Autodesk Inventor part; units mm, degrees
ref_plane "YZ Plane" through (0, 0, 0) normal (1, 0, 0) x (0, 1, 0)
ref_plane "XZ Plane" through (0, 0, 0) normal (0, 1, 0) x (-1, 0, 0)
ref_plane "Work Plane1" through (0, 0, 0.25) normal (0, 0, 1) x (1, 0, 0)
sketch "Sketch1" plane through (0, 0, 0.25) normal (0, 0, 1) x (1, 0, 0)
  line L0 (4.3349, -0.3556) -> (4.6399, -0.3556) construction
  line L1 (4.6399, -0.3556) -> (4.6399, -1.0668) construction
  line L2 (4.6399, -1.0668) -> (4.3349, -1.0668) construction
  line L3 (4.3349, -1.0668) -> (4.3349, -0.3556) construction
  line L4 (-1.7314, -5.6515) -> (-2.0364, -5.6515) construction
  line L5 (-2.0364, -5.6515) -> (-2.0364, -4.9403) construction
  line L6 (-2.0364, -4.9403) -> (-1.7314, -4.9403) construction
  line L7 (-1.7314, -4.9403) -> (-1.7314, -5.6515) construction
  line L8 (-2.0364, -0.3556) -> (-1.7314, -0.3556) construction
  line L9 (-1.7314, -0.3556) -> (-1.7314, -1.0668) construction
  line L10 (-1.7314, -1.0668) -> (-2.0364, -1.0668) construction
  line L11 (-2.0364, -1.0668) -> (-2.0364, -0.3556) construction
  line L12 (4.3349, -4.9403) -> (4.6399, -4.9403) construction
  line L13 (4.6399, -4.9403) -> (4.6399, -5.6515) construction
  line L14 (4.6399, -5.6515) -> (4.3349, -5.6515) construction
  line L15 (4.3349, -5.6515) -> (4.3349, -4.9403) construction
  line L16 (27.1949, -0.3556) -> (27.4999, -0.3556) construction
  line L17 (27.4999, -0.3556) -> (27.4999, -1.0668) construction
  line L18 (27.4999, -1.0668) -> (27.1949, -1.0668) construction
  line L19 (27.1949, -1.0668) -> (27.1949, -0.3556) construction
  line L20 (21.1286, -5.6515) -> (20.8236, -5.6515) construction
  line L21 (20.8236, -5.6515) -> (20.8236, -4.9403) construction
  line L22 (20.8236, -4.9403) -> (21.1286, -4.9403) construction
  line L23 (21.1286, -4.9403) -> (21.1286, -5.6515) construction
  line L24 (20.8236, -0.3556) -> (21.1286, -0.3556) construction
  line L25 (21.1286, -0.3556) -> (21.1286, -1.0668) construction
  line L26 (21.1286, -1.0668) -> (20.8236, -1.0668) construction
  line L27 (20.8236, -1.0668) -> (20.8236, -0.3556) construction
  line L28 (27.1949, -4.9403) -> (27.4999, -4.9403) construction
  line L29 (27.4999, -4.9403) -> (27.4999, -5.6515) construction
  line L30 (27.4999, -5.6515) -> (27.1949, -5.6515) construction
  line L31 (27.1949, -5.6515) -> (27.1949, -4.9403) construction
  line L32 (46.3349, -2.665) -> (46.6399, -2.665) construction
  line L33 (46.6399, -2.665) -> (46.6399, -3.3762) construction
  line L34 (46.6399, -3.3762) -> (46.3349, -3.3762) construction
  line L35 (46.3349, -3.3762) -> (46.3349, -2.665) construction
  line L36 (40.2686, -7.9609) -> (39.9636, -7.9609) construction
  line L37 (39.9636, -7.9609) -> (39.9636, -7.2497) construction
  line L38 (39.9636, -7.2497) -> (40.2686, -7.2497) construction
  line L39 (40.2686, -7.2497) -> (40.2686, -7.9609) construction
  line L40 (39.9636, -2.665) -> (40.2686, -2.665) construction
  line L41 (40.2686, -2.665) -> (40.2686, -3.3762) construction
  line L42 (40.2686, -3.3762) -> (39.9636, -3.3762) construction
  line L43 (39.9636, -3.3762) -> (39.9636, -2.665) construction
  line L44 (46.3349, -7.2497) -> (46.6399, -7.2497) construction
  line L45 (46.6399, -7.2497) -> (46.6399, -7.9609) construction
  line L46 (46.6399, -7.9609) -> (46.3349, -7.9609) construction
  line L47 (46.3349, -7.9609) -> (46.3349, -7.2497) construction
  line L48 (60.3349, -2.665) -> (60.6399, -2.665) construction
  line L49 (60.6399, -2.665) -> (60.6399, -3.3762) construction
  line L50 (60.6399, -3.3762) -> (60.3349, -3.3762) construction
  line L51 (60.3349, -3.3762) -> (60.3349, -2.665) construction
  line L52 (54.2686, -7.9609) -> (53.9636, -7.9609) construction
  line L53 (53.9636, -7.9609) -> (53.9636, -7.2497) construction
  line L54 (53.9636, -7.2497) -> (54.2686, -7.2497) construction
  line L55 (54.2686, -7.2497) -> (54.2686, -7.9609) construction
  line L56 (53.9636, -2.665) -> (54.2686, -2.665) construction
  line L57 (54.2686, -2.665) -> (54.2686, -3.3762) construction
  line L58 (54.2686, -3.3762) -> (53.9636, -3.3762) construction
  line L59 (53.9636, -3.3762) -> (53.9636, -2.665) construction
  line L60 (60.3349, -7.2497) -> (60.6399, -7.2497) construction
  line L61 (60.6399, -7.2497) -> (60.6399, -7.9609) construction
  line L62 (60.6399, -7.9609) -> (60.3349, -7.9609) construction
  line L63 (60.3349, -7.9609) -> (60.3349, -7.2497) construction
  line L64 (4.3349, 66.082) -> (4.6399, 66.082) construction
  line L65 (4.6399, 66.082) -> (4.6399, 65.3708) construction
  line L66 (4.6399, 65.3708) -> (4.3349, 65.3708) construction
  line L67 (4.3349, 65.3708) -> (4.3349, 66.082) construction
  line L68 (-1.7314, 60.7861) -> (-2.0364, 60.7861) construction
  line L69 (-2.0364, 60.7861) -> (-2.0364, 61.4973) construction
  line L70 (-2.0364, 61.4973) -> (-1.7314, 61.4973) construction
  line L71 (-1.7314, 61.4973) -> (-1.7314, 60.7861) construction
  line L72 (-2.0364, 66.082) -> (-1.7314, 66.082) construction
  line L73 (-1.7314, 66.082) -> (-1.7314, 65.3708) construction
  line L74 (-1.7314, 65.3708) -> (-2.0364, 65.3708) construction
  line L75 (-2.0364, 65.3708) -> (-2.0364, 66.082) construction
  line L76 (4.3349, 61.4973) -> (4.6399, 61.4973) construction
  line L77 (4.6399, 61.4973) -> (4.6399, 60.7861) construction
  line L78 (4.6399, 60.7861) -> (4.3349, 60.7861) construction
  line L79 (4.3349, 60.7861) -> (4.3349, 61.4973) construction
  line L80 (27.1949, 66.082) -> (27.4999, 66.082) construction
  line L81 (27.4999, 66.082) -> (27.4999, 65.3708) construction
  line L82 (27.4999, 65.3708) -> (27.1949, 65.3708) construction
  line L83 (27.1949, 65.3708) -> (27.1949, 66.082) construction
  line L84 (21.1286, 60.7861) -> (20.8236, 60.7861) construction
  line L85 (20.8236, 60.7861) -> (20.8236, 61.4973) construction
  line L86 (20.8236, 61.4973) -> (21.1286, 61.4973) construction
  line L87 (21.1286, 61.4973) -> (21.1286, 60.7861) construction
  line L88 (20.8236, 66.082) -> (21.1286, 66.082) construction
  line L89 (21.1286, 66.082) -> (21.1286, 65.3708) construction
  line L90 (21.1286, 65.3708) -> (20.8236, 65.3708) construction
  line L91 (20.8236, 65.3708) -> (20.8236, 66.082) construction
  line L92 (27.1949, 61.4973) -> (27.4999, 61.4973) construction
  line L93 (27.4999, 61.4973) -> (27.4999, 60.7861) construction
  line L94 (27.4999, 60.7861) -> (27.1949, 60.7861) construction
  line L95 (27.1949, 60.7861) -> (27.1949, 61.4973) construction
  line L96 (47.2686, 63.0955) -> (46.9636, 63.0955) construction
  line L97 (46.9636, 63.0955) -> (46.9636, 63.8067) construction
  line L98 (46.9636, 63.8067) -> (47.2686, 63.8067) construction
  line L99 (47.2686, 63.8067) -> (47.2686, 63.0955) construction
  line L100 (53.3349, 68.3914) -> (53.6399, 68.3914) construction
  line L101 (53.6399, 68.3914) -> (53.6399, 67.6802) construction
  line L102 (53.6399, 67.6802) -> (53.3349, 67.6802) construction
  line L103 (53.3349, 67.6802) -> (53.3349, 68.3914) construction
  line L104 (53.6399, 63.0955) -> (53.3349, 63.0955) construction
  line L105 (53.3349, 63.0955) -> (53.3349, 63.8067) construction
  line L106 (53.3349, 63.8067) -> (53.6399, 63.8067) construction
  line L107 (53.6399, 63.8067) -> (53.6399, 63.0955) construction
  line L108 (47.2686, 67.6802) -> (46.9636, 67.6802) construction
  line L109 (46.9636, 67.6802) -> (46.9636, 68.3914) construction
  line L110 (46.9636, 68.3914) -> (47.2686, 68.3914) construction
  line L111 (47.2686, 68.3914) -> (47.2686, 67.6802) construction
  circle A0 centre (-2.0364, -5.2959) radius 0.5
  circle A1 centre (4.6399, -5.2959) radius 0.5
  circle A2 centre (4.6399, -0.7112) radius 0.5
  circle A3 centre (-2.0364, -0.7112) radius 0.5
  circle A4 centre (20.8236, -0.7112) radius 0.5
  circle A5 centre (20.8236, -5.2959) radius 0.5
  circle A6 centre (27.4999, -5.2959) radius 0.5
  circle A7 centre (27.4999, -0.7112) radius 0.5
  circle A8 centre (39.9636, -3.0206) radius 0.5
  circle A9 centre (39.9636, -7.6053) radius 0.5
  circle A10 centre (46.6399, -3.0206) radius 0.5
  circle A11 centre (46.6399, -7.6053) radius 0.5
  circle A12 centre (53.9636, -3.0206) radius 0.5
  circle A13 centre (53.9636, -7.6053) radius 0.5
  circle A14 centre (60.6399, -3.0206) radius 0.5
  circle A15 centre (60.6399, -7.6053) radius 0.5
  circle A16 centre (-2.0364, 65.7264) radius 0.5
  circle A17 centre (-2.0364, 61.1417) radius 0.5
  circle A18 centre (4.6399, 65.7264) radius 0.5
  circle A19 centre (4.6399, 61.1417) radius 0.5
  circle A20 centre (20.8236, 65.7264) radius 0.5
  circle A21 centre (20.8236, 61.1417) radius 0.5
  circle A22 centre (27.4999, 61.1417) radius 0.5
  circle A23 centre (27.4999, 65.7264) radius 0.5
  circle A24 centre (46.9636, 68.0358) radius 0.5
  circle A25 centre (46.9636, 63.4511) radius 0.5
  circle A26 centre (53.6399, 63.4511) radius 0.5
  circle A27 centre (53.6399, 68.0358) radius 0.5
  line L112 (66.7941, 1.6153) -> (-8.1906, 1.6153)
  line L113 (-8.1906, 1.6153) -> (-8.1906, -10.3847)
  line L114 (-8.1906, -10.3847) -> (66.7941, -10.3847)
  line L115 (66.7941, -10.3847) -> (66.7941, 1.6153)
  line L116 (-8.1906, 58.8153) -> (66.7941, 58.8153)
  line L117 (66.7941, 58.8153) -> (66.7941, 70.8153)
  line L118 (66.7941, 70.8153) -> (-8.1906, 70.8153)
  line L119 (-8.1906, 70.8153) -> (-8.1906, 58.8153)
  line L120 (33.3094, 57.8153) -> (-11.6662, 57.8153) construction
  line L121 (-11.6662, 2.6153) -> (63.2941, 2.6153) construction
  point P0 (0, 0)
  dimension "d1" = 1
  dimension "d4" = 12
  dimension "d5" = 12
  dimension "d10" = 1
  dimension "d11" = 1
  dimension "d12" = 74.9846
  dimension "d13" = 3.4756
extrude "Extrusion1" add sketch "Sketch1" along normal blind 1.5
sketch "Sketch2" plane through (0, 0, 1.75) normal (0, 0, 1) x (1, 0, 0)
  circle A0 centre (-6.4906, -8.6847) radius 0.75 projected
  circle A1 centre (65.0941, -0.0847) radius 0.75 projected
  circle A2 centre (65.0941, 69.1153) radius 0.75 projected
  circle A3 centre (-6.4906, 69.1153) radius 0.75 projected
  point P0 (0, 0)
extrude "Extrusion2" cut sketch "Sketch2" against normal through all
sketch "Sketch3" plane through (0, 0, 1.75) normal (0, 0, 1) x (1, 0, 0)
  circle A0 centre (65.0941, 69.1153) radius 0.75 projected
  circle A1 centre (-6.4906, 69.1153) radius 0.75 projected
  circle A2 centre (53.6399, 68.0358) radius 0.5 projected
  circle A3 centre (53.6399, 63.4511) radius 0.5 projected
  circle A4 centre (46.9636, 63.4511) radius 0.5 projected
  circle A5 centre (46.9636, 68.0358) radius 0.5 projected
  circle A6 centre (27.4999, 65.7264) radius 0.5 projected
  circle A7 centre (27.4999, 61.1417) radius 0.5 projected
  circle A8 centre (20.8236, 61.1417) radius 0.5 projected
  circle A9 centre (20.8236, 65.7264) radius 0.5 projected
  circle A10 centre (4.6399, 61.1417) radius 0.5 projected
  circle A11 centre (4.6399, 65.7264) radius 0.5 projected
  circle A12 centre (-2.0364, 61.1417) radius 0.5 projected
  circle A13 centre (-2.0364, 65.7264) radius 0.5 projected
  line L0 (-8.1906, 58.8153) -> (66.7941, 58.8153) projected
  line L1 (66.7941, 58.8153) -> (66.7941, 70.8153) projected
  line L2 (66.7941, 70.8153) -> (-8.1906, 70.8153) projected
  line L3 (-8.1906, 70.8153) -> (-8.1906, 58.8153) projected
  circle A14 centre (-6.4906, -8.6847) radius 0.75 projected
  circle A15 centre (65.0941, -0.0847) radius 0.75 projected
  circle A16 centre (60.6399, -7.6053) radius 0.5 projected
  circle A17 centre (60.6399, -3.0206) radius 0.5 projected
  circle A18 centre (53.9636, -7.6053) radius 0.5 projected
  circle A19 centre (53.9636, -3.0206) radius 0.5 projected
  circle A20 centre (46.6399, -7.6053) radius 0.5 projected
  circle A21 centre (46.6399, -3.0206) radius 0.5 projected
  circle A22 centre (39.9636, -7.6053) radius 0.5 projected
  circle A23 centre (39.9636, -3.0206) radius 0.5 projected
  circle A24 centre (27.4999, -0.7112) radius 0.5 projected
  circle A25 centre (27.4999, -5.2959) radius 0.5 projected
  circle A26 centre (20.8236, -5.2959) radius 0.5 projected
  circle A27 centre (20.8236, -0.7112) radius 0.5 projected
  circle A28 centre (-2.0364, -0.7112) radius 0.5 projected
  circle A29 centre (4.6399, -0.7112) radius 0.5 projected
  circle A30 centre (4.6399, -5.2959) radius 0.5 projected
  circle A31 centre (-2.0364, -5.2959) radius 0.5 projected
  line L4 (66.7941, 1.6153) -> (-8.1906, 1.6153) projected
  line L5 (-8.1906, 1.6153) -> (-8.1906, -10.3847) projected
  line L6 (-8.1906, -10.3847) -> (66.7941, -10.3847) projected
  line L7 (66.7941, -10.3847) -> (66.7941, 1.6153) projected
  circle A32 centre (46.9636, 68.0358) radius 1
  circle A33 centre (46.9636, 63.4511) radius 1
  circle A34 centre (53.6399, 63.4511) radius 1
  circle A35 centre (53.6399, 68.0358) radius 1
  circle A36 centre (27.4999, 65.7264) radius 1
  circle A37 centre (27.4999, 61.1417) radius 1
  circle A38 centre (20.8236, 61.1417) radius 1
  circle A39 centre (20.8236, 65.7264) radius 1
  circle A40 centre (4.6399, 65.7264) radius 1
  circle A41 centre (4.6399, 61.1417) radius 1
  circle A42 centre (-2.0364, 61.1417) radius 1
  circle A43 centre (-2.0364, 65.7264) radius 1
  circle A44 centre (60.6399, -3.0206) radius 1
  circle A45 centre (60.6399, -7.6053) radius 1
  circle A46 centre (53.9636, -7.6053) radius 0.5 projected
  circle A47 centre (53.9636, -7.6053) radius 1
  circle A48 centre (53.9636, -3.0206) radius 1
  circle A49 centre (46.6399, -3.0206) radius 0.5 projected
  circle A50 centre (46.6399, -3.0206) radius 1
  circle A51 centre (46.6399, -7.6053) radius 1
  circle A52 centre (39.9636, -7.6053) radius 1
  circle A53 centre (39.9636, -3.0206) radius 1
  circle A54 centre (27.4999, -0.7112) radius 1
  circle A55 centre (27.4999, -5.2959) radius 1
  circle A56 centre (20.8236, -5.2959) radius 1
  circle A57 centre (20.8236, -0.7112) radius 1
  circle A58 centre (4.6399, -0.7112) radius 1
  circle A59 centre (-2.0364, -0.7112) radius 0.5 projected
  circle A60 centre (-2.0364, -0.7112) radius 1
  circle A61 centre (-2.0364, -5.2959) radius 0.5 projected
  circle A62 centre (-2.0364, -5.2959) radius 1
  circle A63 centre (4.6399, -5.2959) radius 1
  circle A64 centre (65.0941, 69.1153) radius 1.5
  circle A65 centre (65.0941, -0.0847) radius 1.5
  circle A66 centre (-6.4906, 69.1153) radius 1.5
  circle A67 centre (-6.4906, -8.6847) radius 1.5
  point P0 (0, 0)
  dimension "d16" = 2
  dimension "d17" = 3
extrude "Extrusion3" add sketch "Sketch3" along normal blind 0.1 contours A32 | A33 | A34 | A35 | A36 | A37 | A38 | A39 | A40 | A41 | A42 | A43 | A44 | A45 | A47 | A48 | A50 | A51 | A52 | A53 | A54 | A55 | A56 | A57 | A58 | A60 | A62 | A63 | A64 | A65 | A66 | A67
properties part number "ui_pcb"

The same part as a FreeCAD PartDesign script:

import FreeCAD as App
import Part
import Sketcher

V = App.Vector
Q = App.Units.Quantity

doc = App.newDocument("Part")
body = doc.addObject("PartDesign::Body", "Body")
body.AllowCompound = True

sketch1 = doc.addObject("Sketcher::SketchObject", "Sketch")
body.addObject(sketch1)
sketch1.AttachmentSupport = (doc.XY_Plane, [""])
sketch1.MapMode = "FlatFace"
sketch1.AttachmentOffset = App.Placement(V(0, 0, 0.25), App.Rotation())
sketch1.addGeometry([
    Part.LineSegment(V(66.7941, -10.3847, 0), V(66.7941, 1.6153, 0)),
    Part.LineSegment(V(66.7941, 1.6153, 0), V(-8.1906, 1.6153, 0)),
    Part.LineSegment(V(-8.1906, 1.6153, 0), V(-8.1906, -10.3847, 0)),
    Part.LineSegment(V(-8.1906, -10.3847, 0), V(66.7941, -10.3847, 0)),
    Part.Circle(V(-2.0364, -5.2959, 0), V(0, 0, 1), 0.5),
    Part.Circle(V(-2.0364, -0.7112, 0), V(0, 0, 1), 0.5),
    Part.Circle(V(4.6399, -5.2959, 0), V(0, 0, 1), 0.5),
    Part.Circle(V(4.6399, -0.7112, 0), V(0, 0, 1), 0.5),
    Part.Circle(V(20.8236, -5.2959, 0), V(0, 0, 1), 0.5),
    Part.Circle(V(20.8236, -0.7112, 0), V(0, 0, 1), 0.5),
    Part.Circle(V(27.4999, -5.2959, 0), V(0, 0, 1), 0.5),
    Part.Circle(V(27.4999, -0.7112, 0), V(0, 0, 1), 0.5),
    Part.Circle(V(39.9636, -7.6053, 0), V(0, 0, 1), 0.5),
    Part.Circle(V(46.6399, -7.6053, 0), V(0, 0, 1), 0.5),
    Part.Circle(V(39.9636, -3.0206, 0), V(0, 0, 1), 0.5),
    Part.Circle(V(46.6399, -3.0206, 0), V(0, 0, 1), 0.5),
    Part.Circle(V(53.9636, -7.6053, 0), V(0, 0, 1), 0.5),
    Part.Circle(V(53.9636, -3.0206, 0), V(0, 0, 1), 0.5),
    Part.Circle(V(60.6399, -7.6053, 0), V(0, 0, 1), 0.5),
    Part.Circle(V(60.6399, -3.0206, 0), V(0, 0, 1), 0.5),
    Part.LineSegment(V(-8.1906, 70.8153, 0), V(-8.1906, 58.8153, 0)),
    Part.LineSegment(V(-8.1906, 58.8153, 0), V(66.7941, 58.8153, 0)),
    Part.LineSegment(V(66.7941, 58.8153, 0), V(66.7941, 70.8153, 0)),
    Part.LineSegment(V(66.7941, 70.8153, 0), V(-8.1906, 70.8153, 0)),
    Part.Circle(V(-2.0364, 61.1417, 0), V(0, 0, 1), 0.5),
    Part.Circle(V(-2.0364, 65.7264, 0), V(0, 0, 1), 0.5),
    Part.Circle(V(4.6399, 61.1417, 0), V(0, 0, 1), 0.5),
    Part.Circle(V(4.6399, 65.7264, 0), V(0, 0, 1), 0.5),
    Part.Circle(V(20.8236, 61.1417, 0), V(0, 0, 1), 0.5),
    Part.Circle(V(20.8236, 65.7264, 0), V(0, 0, 1), 0.5),
    Part.Circle(V(27.4999, 61.1417, 0), V(0, 0, 1), 0.5),
    Part.Circle(V(27.4999, 65.7264, 0), V(0, 0, 1), 0.5),
    Part.Circle(V(46.9636, 63.4511, 0), V(0, 0, 1), 0.5),
    Part.Circle(V(46.9636, 68.0358, 0), V(0, 0, 1), 0.5),
    Part.Circle(V(53.6399, 63.4511, 0), V(0, 0, 1), 0.5),
    Part.Circle(V(53.6399, 68.0358, 0), V(0, 0, 1), 0.5),
], False)
sketch1.addConstraint([
    Sketcher.Constraint("Coincident", 0, 2, 1, 1),
    Sketcher.Constraint("Coincident", 1, 2, 2, 1),
    Sketcher.Constraint("Coincident", 2, 2, 3, 1),
    Sketcher.Constraint("Coincident", 3, 2, 0, 1),
    Sketcher.Constraint("Coincident", 20, 2, 21, 1),
    Sketcher.Constraint("Coincident", 21, 2, 22, 1),
    Sketcher.Constraint("Coincident", 22, 2, 23, 1),
    Sketcher.Constraint("Coincident", 23, 2, 20, 1),
    Sketcher.Constraint("Vertical", 0),
    Sketcher.Constraint("Horizontal", 1),
    Sketcher.Constraint("Vertical", 2),
    Sketcher.Constraint("Horizontal", 3),
    Sketcher.Constraint("Vertical", 20),
    Sketcher.Constraint("Horizontal", 21),
    Sketcher.Constraint("Vertical", 22),
    Sketcher.Constraint("Horizontal", 23),
    Sketcher.Constraint("Equal", 4, 5),
    Sketcher.Constraint("Equal", 5, 6),
    Sketcher.Constraint("Equal", 6, 7),
    Sketcher.Constraint("Equal", 7, 8),
    Sketcher.Constraint("Equal", 8, 9),
    Sketcher.Constraint("Equal", 9, 10),
    Sketcher.Constraint("Equal", 10, 11),
    Sketcher.Constraint("Equal", 11, 12),
    Sketcher.Constraint("Equal", 12, 13),
    Sketcher.Constraint("Equal", 13, 14),
    Sketcher.Constraint("Equal", 14, 15),
    Sketcher.Constraint("Equal", 15, 16),
    Sketcher.Constraint("Equal", 16, 17),
    Sketcher.Constraint("Equal", 17, 18),
    Sketcher.Constraint("Equal", 18, 19),
    Sketcher.Constraint("Equal", 19, 24),
    Sketcher.Constraint("Equal", 24, 25),
    Sketcher.Constraint("Equal", 25, 26),
    Sketcher.Constraint("Equal", 26, 27),
    Sketcher.Constraint("Equal", 27, 28),
    Sketcher.Constraint("Equal", 28, 29),
    Sketcher.Constraint("Equal", 29, 30),
    Sketcher.Constraint("Equal", 30, 31),
    Sketcher.Constraint("Equal", 31, 32),
    Sketcher.Constraint("Equal", 32, 33),
    Sketcher.Constraint("Equal", 33, 34),
    Sketcher.Constraint("Equal", 34, 35),
    Sketcher.Constraint("Horizontal", 4, 3, 6, 3),
    Sketcher.Constraint("Horizontal", 5, 3, 7, 3),
    Sketcher.Constraint("Horizontal", 6, 3, 8, 3),
    Sketcher.Constraint("Horizontal", 7, 3, 9, 3),
    Sketcher.Constraint("Horizontal", 8, 3, 10, 3),
    Sketcher.Constraint("Horizontal", 9, 3, 11, 3),
    Sketcher.Constraint("Horizontal", 12, 3, 13, 3),
    Sketcher.Constraint("Horizontal", 14, 3, 15, 3),
    Sketcher.Constraint("Horizontal", 13, 3, 16, 3),
    Sketcher.Constraint("Horizontal", 15, 3, 17, 3),
    Sketcher.Constraint("Horizontal", 16, 3, 18, 3),
    Sketcher.Constraint("Horizontal", 17, 3, 19, 3),
    Sketcher.Constraint("Horizontal", 24, 3, 26, 3),
    Sketcher.Constraint("Horizontal", 25, 3, 27, 3),
    Sketcher.Constraint("Horizontal", 26, 3, 28, 3),
    Sketcher.Constraint("Horizontal", 27, 3, 29, 3),
    Sketcher.Constraint("Horizontal", 28, 3, 30, 3),
    Sketcher.Constraint("Horizontal", 29, 3, 31, 3),
    Sketcher.Constraint("Horizontal", 32, 3, 34, 3),
    Sketcher.Constraint("Horizontal", 33, 3, 35, 3),
    Sketcher.Constraint("Vertical", 4, 3, 5, 3),
    Sketcher.Constraint("Vertical", 6, 3, 7, 3),
    Sketcher.Constraint("Vertical", 8, 3, 9, 3),
    Sketcher.Constraint("Vertical", 10, 3, 11, 3),
    Sketcher.Constraint("Vertical", 12, 3, 14, 3),
    Sketcher.Constraint("Vertical", 13, 3, 15, 3),
    Sketcher.Constraint("Vertical", 16, 3, 17, 3),
    Sketcher.Constraint("Vertical", 18, 3, 19, 3),
    Sketcher.Constraint("Vertical", 5, 3, 24, 3),
    Sketcher.Constraint("Vertical", 24, 3, 25, 3),
    Sketcher.Constraint("Vertical", 7, 3, 26, 3),
    Sketcher.Constraint("Vertical", 26, 3, 27, 3),
    Sketcher.Constraint("Vertical", 9, 3, 28, 3),
    Sketcher.Constraint("Vertical", 28, 3, 29, 3),
    Sketcher.Constraint("Vertical", 11, 3, 30, 3),
    Sketcher.Constraint("Vertical", 30, 3, 31, 3),
    Sketcher.Constraint("Vertical", 32, 3, 33, 3),
    Sketcher.Constraint("Vertical", 34, 3, 35, 3),
    Sketcher.Constraint("Vertical", 2, 2, 20, 2),
    Sketcher.Constraint("Vertical", 3, 2, 21, 2),
    Sketcher.Constraint("Equal", 2, 20),
    Sketcher.Constraint("Diameter", 4, Q("1 mm")),
    Sketcher.Constraint("DistanceY", 0, 1, 0, 2, Q("12 mm")),
    Sketcher.Constraint("DistanceX", 1, 2, 1, 1, Q("74.9847 mm")),
    Sketcher.Constraint("DistanceX", 12, 3, 16, 3, Q("14 mm")),
    Sketcher.Constraint("DistanceX", 13, 3, 18, 3, Q("14 mm")),
    Sketcher.Constraint("DistanceX", -1, 1, 10, 3, Q("27.5 mm")),
    Sketcher.Constraint("DistanceX", -1, 1, 6, 3, Q("4.64 mm")),
    Sketcher.Constraint("DistanceX", -1, 1, 13, 3, Q("46.64 mm")),
    Sketcher.Constraint("DistanceX", -1, 1, 34, 3, Q("53.64 mm")),
    Sketcher.Constraint("DistanceX", 4, 3, 8, 3, Q("22.86 mm")),
    Sketcher.Constraint("DistanceX", 8, 3, 12, 3, Q("19.14 mm")),
    Sketcher.Constraint("DistanceX", 29, 3, 32, 3, Q("26.14 mm")),
    Sketcher.Constraint("DistanceY", 4, 3, -1, 1, Q("5.296 mm")),
    Sketcher.Constraint("DistanceY", -1, 1, 32, 3, Q("63.451 mm")),
    Sketcher.Constraint("DistanceX", -1, 1, 0, 2, Q("66.794 mm")),
    Sketcher.Constraint("DistanceY", 12, 3, 11, 3, Q("6.894 mm")),
    Sketcher.Constraint("DistanceY", 5, 3, 24, 3, Q("61.853 mm")),
    Sketcher.Constraint("DistanceY", 30, 3, 33, 3, Q("6.894 mm")),
    Sketcher.Constraint("DistanceY", 19, 3, 0, 2, Q("4.636 mm")),
    Sketcher.Constraint("DistanceY", 20, 2, 25, 3, Q("6.911 mm")),
    Sketcher.Constraint("DistanceX", 4, 3, -1, 1, Q("2.0364 mm")),
    Sketcher.Constraint("DistanceY", 5, 3, -1, 1, Q("0.7112 mm")),
    Sketcher.Constraint("DistanceY", 14, 3, -1, 1, Q("3.0206 mm")),
    Sketcher.Constraint("DistanceY", -1, 1, 25, 3, Q("65.7264 mm")),
])
pad1 = doc.addObject("PartDesign::Pad", "Pad")
body.addObject(pad1)
pad1.Profile = sketch1
pad1.Length = 1.5

sketch2 = doc.addObject("Sketcher::SketchObject", "Sketch001")
body.addObject(sketch2)
sketch2.AttachmentSupport = (doc.XY_Plane, [""])
sketch2.MapMode = "FlatFace"
sketch2.AttachmentOffset = App.Placement(V(0, 0, 1.75), App.Rotation())
sketch2.addGeometry([
    Part.Circle(V(-6.4906, -8.6847, 0), V(0, 0, 1), 0.75),
    Part.Circle(V(65.0941, -0.0847, 0), V(0, 0, 1), 0.75),
    Part.Circle(V(65.0941, 69.1153, 0), V(0, 0, 1), 0.75),
    Part.Circle(V(-6.4906, 69.1153, 0), V(0, 0, 1), 0.75),
], False)
sketch2.addConstraint([
    Sketcher.Constraint("Equal", 0, 1),
    Sketcher.Constraint("Equal", 1, 2),
    Sketcher.Constraint("Equal", 2, 3),
    Sketcher.Constraint("Horizontal", 2, 3, 3, 3),
    Sketcher.Constraint("Vertical", 1, 3, 2, 3),
    Sketcher.Constraint("Vertical", 0, 3, 3, 3),
    Sketcher.Constraint("Diameter", 0, Q("1.5 mm")),
    Sketcher.Constraint("DistanceY", 0, 3, 1, 3, Q("8.6 mm")),
    Sketcher.Constraint("DistanceY", 1, 3, 2, 3, Q("69.2 mm")),
    Sketcher.Constraint("DistanceX", -1, 1, 1, 3, Q("65.094 mm")),
    Sketcher.Constraint("DistanceX", 0, 3, -1, 1, Q("6.4906 mm")),
    Sketcher.Constraint("DistanceY", 0, 3, -1, 1, Q("8.6847 mm")),
])
pocket1 = doc.addObject("PartDesign::Pocket", "Pocket")
body.addObject(pocket1)
pocket1.Profile = sketch2
pocket1.Type = "ThroughAll"

sketch3 = doc.addObject("Sketcher::SketchObject", "Sketch002")
body.addObject(sketch3)
sketch3.AttachmentSupport = (doc.XY_Plane, [""])
sketch3.MapMode = "FlatFace"
sketch3.AttachmentOffset = App.Placement(V(0, 0, 1.75), App.Rotation())
sketch3.addGeometry([
    Part.Circle(V(46.9636, 68.0358, 0), V(0, 0, 1), 1),
    Part.Circle(V(46.9636, 68.0358, 0), V(0, 0, 1), 0.5),
    Part.Circle(V(46.9636, 63.4511, 0), V(0, 0, 1), 1),
    Part.Circle(V(46.9636, 63.4511, 0), V(0, 0, 1), 0.5),
    Part.Circle(V(53.6399, 63.4511, 0), V(0, 0, 1), 1),
    Part.Circle(V(53.6399, 63.4511, 0), V(0, 0, 1), 0.5),
    Part.Circle(V(53.6399, 68.0358, 0), V(0, 0, 1), 1),
    Part.Circle(V(53.6399, 68.0358, 0), V(0, 0, 1), 0.5),
    Part.Circle(V(27.4999, 65.7264, 0), V(0, 0, 1), 1),
    Part.Circle(V(27.4999, 65.7264, 0), V(0, 0, 1), 0.5),
    Part.Circle(V(27.4999, 61.1417, 0), V(0, 0, 1), 1),
    Part.Circle(V(27.4999, 61.1417, 0), V(0, 0, 1), 0.5),
    Part.Circle(V(20.8236, 61.1417, 0), V(0, 0, 1), 1),
    Part.Circle(V(20.8236, 61.1417, 0), V(0, 0, 1), 0.5),
    Part.Circle(V(20.8236, 65.7264, 0), V(0, 0, 1), 1),
    Part.Circle(V(20.8236, 65.7264, 0), V(0, 0, 1), 0.5),
    Part.Circle(V(4.6399, 65.7264, 0), V(0, 0, 1), 1),
    Part.Circle(V(4.6399, 65.7264, 0), V(0, 0, 1), 0.5),
    Part.Circle(V(4.6399, 61.1417, 0), V(0, 0, 1), 1),
    Part.Circle(V(4.6399, 61.1417, 0), V(0, 0, 1), 0.5),
    Part.Circle(V(-2.0364, 61.1417, 0), V(0, 0, 1), 1),
    Part.Circle(V(-2.0364, 61.1417, 0), V(0, 0, 1), 0.5),
    Part.Circle(V(-2.0364, 65.7264, 0), V(0, 0, 1), 1),
    Part.Circle(V(-2.0364, 65.7264, 0), V(0, 0, 1), 0.5),
    Part.Circle(V(60.6399, -3.0206, 0), V(0, 0, 1), 1),
    Part.Circle(V(60.6399, -3.0206, 0), V(0, 0, 1), 0.5),
    Part.Circle(V(60.6399, -7.6053, 0), V(0, 0, 1), 1),
    Part.Circle(V(60.6399, -7.6053, 0), V(0, 0, 1), 0.5),
    Part.Circle(V(53.9636, -7.6053, 0), V(0, 0, 1), 1),
    Part.Circle(V(53.9636, -7.6053, 0), V(0, 0, 1), 0.5),
    Part.Circle(V(53.9636, -3.0206, 0), V(0, 0, 1), 1),
    Part.Circle(V(53.9636, -3.0206, 0), V(0, 0, 1), 0.5),
    Part.Circle(V(46.6399, -3.0206, 0), V(0, 0, 1), 1),
    Part.Circle(V(46.6399, -3.0206, 0), V(0, 0, 1), 0.5),
    Part.Circle(V(46.6399, -7.6053, 0), V(0, 0, 1), 1),
    Part.Circle(V(46.6399, -7.6053, 0), V(0, 0, 1), 0.5),
    Part.Circle(V(39.9636, -7.6053, 0), V(0, 0, 1), 1),
    Part.Circle(V(39.9636, -7.6053, 0), V(0, 0, 1), 0.5),
    Part.Circle(V(39.9636, -3.0206, 0), V(0, 0, 1), 1),
    Part.Circle(V(39.9636, -3.0206, 0), V(0, 0, 1), 0.5),
    Part.Circle(V(27.4999, -0.7112, 0), V(0, 0, 1), 1),
    Part.Circle(V(27.4999, -0.7112, 0), V(0, 0, 1), 0.5),
    Part.Circle(V(27.4999, -5.2959, 0), V(0, 0, 1), 1),
    Part.Circle(V(27.4999, -5.2959, 0), V(0, 0, 1), 0.5),
    Part.Circle(V(20.8236, -5.2959, 0), V(0, 0, 1), 1),
    Part.Circle(V(20.8236, -5.2959, 0), V(0, 0, 1), 0.5),
    Part.Circle(V(20.8236, -0.7112, 0), V(0, 0, 1), 1),
    Part.Circle(V(20.8236, -0.7112, 0), V(0, 0, 1), 0.5),
    Part.Circle(V(4.6399, -0.7112, 0), V(0, 0, 1), 1),
    Part.Circle(V(4.6399, -0.7112, 0), V(0, 0, 1), 0.5),
    Part.Circle(V(-2.0364, -0.7112, 0), V(0, 0, 1), 1),
    Part.Circle(V(-2.0364, -0.7112, 0), V(0, 0, 1), 0.5),
    Part.Circle(V(-2.0364, -5.2959, 0), V(0, 0, 1), 1),
    Part.Circle(V(-2.0364, -5.2959, 0), V(0, 0, 1), 0.5),
    Part.Circle(V(4.6399, -5.2959, 0), V(0, 0, 1), 1),
    Part.Circle(V(4.6399, -5.2959, 0), V(0, 0, 1), 0.5),
    Part.Circle(V(65.0941, 69.1153, 0), V(0, 0, 1), 1.5),
    Part.Circle(V(65.0941, 69.1153, 0), V(0, 0, 1), 0.75),
    Part.Circle(V(65.0941, -0.0847, 0), V(0, 0, 1), 1.5),
    Part.Circle(V(65.0941, -0.0847, 0), V(0, 0, 1), 0.75),
    Part.Circle(V(-6.4906, 69.1153, 0), V(0, 0, 1), 1.5),
    Part.Circle(V(-6.4906, 69.1153, 0), V(0, 0, 1), 0.75),
    Part.Circle(V(-6.4906, -8.6847, 0), V(0, 0, 1), 1.5),
    Part.Circle(V(-6.4906, -8.6847, 0), V(0, 0, 1), 0.75),
], False)
sketch3.addConstraint([
    Sketcher.Constraint("Coincident", 1, 3, 0, 3),
    Sketcher.Constraint("Coincident", 3, 3, 2, 3),
    Sketcher.Constraint("Coincident", 5, 3, 4, 3),
    Sketcher.Constraint("Coincident", 7, 3, 6, 3),
    Sketcher.Constraint("Coincident", 9, 3, 8, 3),
    Sketcher.Constraint("Coincident", 11, 3, 10, 3),
    Sketcher.Constraint("Coincident", 13, 3, 12, 3),
    Sketcher.Constraint("Coincident", 15, 3, 14, 3),
    Sketcher.Constraint("Coincident", 17, 3, 16, 3),
    Sketcher.Constraint("Coincident", 19, 3, 18, 3),
    Sketcher.Constraint("Coincident", 21, 3, 20, 3),
    Sketcher.Constraint("Coincident", 23, 3, 22, 3),
    Sketcher.Constraint("Coincident", 25, 3, 24, 3),
    Sketcher.Constraint("Coincident", 27, 3, 26, 3),
    Sketcher.Constraint("Coincident", 29, 3, 28, 3),
    Sketcher.Constraint("Coincident", 31, 3, 30, 3),
    Sketcher.Constraint("Coincident", 33, 3, 32, 3),
    Sketcher.Constraint("Coincident", 35, 3, 34, 3),
    Sketcher.Constraint("Coincident", 37, 3, 36, 3),
    Sketcher.Constraint("Coincident", 39, 3, 38, 3),
    Sketcher.Constraint("Coincident", 41, 3, 40, 3),
    Sketcher.Constraint("Coincident", 43, 3, 42, 3),
    Sketcher.Constraint("Coincident", 45, 3, 44, 3),
    Sketcher.Constraint("Coincident", 47, 3, 46, 3),
    Sketcher.Constraint("Coincident", 49, 3, 48, 3),
    Sketcher.Constraint("Coincident", 51, 3, 50, 3),
    Sketcher.Constraint("Coincident", 53, 3, 52, 3),
    Sketcher.Constraint("Coincident", 55, 3, 54, 3),
    Sketcher.Constraint("Coincident", 57, 3, 56, 3),
    Sketcher.Constraint("Coincident", 59, 3, 58, 3),
    Sketcher.Constraint("Coincident", 61, 3, 60, 3),
    Sketcher.Constraint("Coincident", 63, 3, 62, 3),
    Sketcher.Constraint("Equal", 0, 2),
    Sketcher.Constraint("Equal", 1, 3),
    Sketcher.Constraint("Equal", 2, 4),
    Sketcher.Constraint("Equal", 3, 5),
    Sketcher.Constraint("Equal", 4, 6),
    Sketcher.Constraint("Equal", 5, 7),
    Sketcher.Constraint("Equal", 6, 8),
    Sketcher.Constraint("Equal", 7, 9),
    Sketcher.Constraint("Equal", 8, 10),
    Sketcher.Constraint("Equal", 9, 11),
    Sketcher.Constraint("Equal", 10, 12),
    Sketcher.Constraint("Equal", 11, 13),
    Sketcher.Constraint("Equal", 12, 14),
    Sketcher.Constraint("Equal", 13, 15),
    Sketcher.Constraint("Equal", 14, 16),
    Sketcher.Constraint("Equal", 15, 17),
    Sketcher.Constraint("Equal", 16, 18),
    Sketcher.Constraint("Equal", 17, 19),
    Sketcher.Constraint("Equal", 18, 20),
    Sketcher.Constraint("Equal", 19, 21),
    Sketcher.Constraint("Equal", 20, 22),
    Sketcher.Constraint("Equal", 21, 23),
    Sketcher.Constraint("Equal", 22, 24),
    Sketcher.Constraint("Equal", 23, 25),
    Sketcher.Constraint("Equal", 24, 26),
    Sketcher.Constraint("Equal", 25, 27),
    Sketcher.Constraint("Equal", 26, 28),
    Sketcher.Constraint("Equal", 27, 29),
    Sketcher.Constraint("Equal", 28, 30),
    Sketcher.Constraint("Equal", 29, 31),
    Sketcher.Constraint("Equal", 30, 32),
    Sketcher.Constraint("Equal", 31, 33),
    Sketcher.Constraint("Equal", 32, 34),
    Sketcher.Constraint("Equal", 33, 35),
    Sketcher.Constraint("Equal", 34, 36),
    Sketcher.Constraint("Equal", 35, 37),
    Sketcher.Constraint("Equal", 36, 38),
    Sketcher.Constraint("Equal", 37, 39),
    Sketcher.Constraint("Equal", 38, 40),
    Sketcher.Constraint("Equal", 39, 41),
    Sketcher.Constraint("Equal", 40, 42),
    Sketcher.Constraint("Equal", 41, 43),
    Sketcher.Constraint("Equal", 42, 44),
    Sketcher.Constraint("Equal", 43, 45),
    Sketcher.Constraint("Equal", 44, 46),
    Sketcher.Constraint("Equal", 45, 47),
    Sketcher.Constraint("Equal", 46, 48),
    Sketcher.Constraint("Equal", 47, 49),
    Sketcher.Constraint("Equal", 48, 50),
    Sketcher.Constraint("Equal", 49, 51),
    Sketcher.Constraint("Equal", 50, 52),
    Sketcher.Constraint("Equal", 51, 53),
    Sketcher.Constraint("Equal", 52, 54),
    Sketcher.Constraint("Equal", 53, 55),
    Sketcher.Constraint("Equal", 56, 58),
    Sketcher.Constraint("Equal", 57, 59),
    Sketcher.Constraint("Equal", 58, 60),
    Sketcher.Constraint("Equal", 59, 61),
    Sketcher.Constraint("Equal", 60, 62),
    Sketcher.Constraint("Equal", 61, 63),
    Sketcher.Constraint("Horizontal", 3, 3, 4, 3),
    Sketcher.Constraint("Horizontal", 1, 3, 6, 3),
    Sketcher.Constraint("Horizontal", 11, 3, 12, 3),
    Sketcher.Constraint("Horizontal", 9, 3, 14, 3),
    Sketcher.Constraint("Horizontal", 15, 3, 16, 3),
    Sketcher.Constraint("Horizontal", 13, 3, 18, 3),
    Sketcher.Constraint("Horizontal", 19, 3, 20, 3),
    Sketcher.Constraint("Horizontal", 17, 3, 22, 3),
    Sketcher.Constraint("Horizontal", 27, 3, 28, 3),
    Sketcher.Constraint("Horizontal", 25, 3, 30, 3),
    Sketcher.Constraint("Horizontal", 31, 3, 32, 3),
    Sketcher.Constraint("Horizontal", 29, 3, 34, 3),
    Sketcher.Constraint("Horizontal", 35, 3, 36, 3),
    Sketcher.Constraint("Horizontal", 33, 3, 38, 3),
    Sketcher.Constraint("Horizontal", 43, 3, 44, 3),
    Sketcher.Constraint("Horizontal", 41, 3, 46, 3),
    Sketcher.Constraint("Horizontal", 47, 3, 48, 3),
    Sketcher.Constraint("Horizontal", 49, 3, 50, 3),
    Sketcher.Constraint("Horizontal", 45, 3, 52, 3),
    Sketcher.Constraint("Horizontal", 53, 3, 54, 3),
    Sketcher.Constraint("Horizontal", 57, 3, 60, 3),
    Sketcher.Constraint("Vertical", 1, 3, 2, 3),
    Sketcher.Constraint("Vertical", 5, 3, 6, 3),
    Sketcher.Constraint("Vertical", 9, 3, 10, 3),
    Sketcher.Constraint("Vertical", 13, 3, 14, 3),
    Sketcher.Constraint("Vertical", 17, 3, 18, 3),
    Sketcher.Constraint("Vertical", 21, 3, 22, 3),
    Sketcher.Constraint("Vertical", 25, 3, 26, 3),
    Sketcher.Constraint("Vertical", 29, 3, 30, 3),
    Sketcher.Constraint("Vertical", 33, 3, 34, 3),
    Sketcher.Constraint("Vertical", 37, 3, 38, 3),
    Sketcher.Constraint("Vertical", 11, 3, 40, 3),
    Sketcher.Constraint("Vertical", 41, 3, 42, 3),
    Sketcher.Constraint("Vertical", 15, 3, 44, 3),
    Sketcher.Constraint("Vertical", 45, 3, 46, 3),
    Sketcher.Constraint("Vertical", 19, 3, 48, 3),
    Sketcher.Constraint("Vertical", 23, 3, 50, 3),
    Sketcher.Constraint("Vertical", 51, 3, 52, 3),
    Sketcher.Constraint("Vertical", 49, 3, 54, 3),
    Sketcher.Constraint("Vertical", 57, 3, 58, 3),
    Sketcher.Constraint("Vertical", 61, 3, 62, 3),
    Sketcher.Constraint("Diameter", 0, Q("2 mm")),
    Sketcher.Constraint("Diameter", 56, Q("3 mm")),
    Sketcher.Constraint("Diameter", 1, Q("1 mm")),
    Sketcher.Constraint("Diameter", 57, Q("1.5 mm")),
    Sketcher.Constraint("DistanceX", -1, 1, 8, 3, Q("27.5 mm")),
    Sketcher.Constraint("DistanceX", -1, 1, 4, 3, Q("53.64 mm")),
    Sketcher.Constraint("DistanceX", -1, 1, 16, 3, Q("4.64 mm")),
    Sketcher.Constraint("DistanceX", -1, 1, 24, 3, Q("60.64 mm")),
    Sketcher.Constraint("DistanceX", -1, 1, 32, 3, Q("46.64 mm")),
    Sketcher.Constraint("DistanceY", -1, 1, 2, 3, Q("63.451 mm")),
    Sketcher.Constraint("DistanceY", 42, 3, -1, 1, Q("5.296 mm")),
    Sketcher.Constraint("DistanceX", -1, 1, 56, 3, Q("65.094 mm")),
    Sketcher.Constraint("DistanceX", -1, 1, 0, 3, Q("46.9636 mm")),
    Sketcher.Constraint("DistanceY", -1, 1, 0, 3, Q("68.0358 mm")),
    Sketcher.Constraint("DistanceY", -1, 1, 8, 3, Q("65.7264 mm")),
    Sketcher.Constraint("DistanceY", -1, 1, 10, 3, Q("61.1417 mm")),
    Sketcher.Constraint("DistanceX", -1, 1, 12, 3, Q("20.8236 mm")),
    Sketcher.Constraint("DistanceX", 20, 3, -1, 1, Q("2.0364 mm")),
    Sketcher.Constraint("DistanceY", 24, 3, -1, 1, Q("3.0206 mm")),
    Sketcher.Constraint("DistanceY", 26, 3, -1, 1, Q("7.6053 mm")),
    Sketcher.Constraint("DistanceX", -1, 1, 28, 3, Q("53.9636 mm")),
    Sketcher.Constraint("DistanceX", -1, 1, 36, 3, Q("39.9636 mm")),
    Sketcher.Constraint("DistanceY", 40, 3, -1, 1, Q("0.7112 mm")),
    Sketcher.Constraint("DistanceY", -1, 1, 56, 3, Q("69.1153 mm")),
    Sketcher.Constraint("DistanceY", 58, 3, -1, 1, Q("0.0847 mm")),
    Sketcher.Constraint("DistanceX", 60, 3, -1, 1, Q("6.4906 mm")),
    Sketcher.Constraint("DistanceY", 62, 3, -1, 1, Q("8.6847 mm")),
])
pad2 = doc.addObject("PartDesign::Pad", "Pad001")
body.addObject(pad2)
pad2.Profile = sketch3
pad2.Length = 0.1

doc.recompute()
